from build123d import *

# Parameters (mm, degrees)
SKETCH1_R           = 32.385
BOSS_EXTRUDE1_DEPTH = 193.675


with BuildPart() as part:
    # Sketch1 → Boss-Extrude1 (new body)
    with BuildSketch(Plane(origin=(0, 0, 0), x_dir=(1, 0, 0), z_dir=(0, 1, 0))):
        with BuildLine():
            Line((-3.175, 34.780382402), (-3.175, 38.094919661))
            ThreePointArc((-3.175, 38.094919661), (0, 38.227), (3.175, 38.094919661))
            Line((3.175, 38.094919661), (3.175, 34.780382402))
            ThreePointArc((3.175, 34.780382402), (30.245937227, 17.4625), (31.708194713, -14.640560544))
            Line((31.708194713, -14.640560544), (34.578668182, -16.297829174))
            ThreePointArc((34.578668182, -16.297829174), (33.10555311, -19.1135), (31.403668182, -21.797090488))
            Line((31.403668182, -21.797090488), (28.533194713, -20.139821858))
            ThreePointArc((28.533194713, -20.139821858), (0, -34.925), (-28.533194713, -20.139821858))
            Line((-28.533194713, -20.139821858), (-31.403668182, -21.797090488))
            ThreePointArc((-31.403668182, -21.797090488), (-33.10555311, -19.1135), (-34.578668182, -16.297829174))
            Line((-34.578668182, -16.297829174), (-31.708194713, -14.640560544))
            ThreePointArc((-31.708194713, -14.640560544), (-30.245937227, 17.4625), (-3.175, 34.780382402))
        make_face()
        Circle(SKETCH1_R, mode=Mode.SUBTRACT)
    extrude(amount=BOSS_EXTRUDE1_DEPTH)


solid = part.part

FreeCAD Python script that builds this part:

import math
import FreeCAD as App
import Part
import Sketcher
from FreeCAD import Vector
Q = App.Units.Quantity

doc = App.newDocument("Part")
params = doc.addObject("Spreadsheet::Sheet", "Params")
for row, (alias, value) in enumerate([
    ("sketch1_diameter", "2.55 in"),
    ("sketch1_radius", "1.375 in"),
    ("sketch1_radius2", "1.505 in"),
    ("pad1_length", "7.625 in"),
], start=1):
    params.set(f"A{row}", alias)
    params.set(f"B{row}", "=" + value)
    params.setAlias(f"B{row}", alias)

body = doc.addObject("PartDesign::Body", "Body")

# Sketch on XZ plane
sketch1 = body.newObject("Sketcher::SketchObject", "Sketch")
sketch1.AttachmentSupport = (doc.getObject("XZ_Plane"), [""])
sketch1.MapMode = "FlatFace"
sketch1.addGeometry(Part.LineSegment(Vector(-3.175, -38.09492, 0), Vector(-3.175, -34.780382, 0)), False)
sketch1.addGeometry(Part.ArcOfCircle(Part.Circle(Vector(0, 0, 0), Vector(0, 0, 1), 34.925), math.radians(155.215909), math.radians(264.784091)), False)
sketch1.addGeometry(Part.LineSegment(Vector(-31.708195, 14.640561, 0), Vector(-34.578668, 16.297829, 0)), False)
sketch1.addGeometry(Part.ArcOfCircle(Part.Circle(Vector(0, 0, 0), Vector(0, 0, 1), 38.227), math.radians(145.235726), math.radians(154.764274)), False)
sketch1.addGeometry(Part.LineSegment(Vector(-31.403668, 21.79709, 0), Vector(-28.533195, 20.139822, 0)), False)
sketch1.addGeometry(Part.ArcOfCircle(Part.Circle(Vector(0, 0, 0), Vector(0, 0, 1), 34.925), math.radians(35.215909), math.radians(144.784091)), False)
sketch1.addGeometry(Part.LineSegment(Vector(28.533195, 20.139822, 0), Vector(31.403668, 21.79709, 0)), False)
sketch1.addGeometry(Part.ArcOfCircle(Part.Circle(Vector(0, 0, 0), Vector(0, 0, 1), 38.227), math.radians(25.235726), math.radians(34.764274)), False)
sketch1.addGeometry(Part.LineSegment(Vector(34.578668, 16.297829, 0), Vector(31.708195, 14.640561, 0)), False)
sketch1.addGeometry(Part.ArcOfCircle(Part.Circle(Vector(0, 0, 0), Vector(0, 0, 1), 34.925), math.radians(-84.784091), math.radians(24.784091)), False)
sketch1.addGeometry(Part.LineSegment(Vector(3.175, -34.780382, 0), Vector(3.175, -38.09492, 0)), False)
sketch1.addGeometry(Part.ArcOfCircle(Part.Circle(Vector(0, 0, 0), Vector(0, 0, 1), 38.227), math.radians(-94.764274), math.radians(-85.235726)), False)
sketch1.addGeometry(Part.Circle(Vector(0, 0, 0), Vector(0, 0, 1), 32.385), False)
sketch1.addConstraint(Sketcher.Constraint("Coincident", 0, 2, 1, 2))
sketch1.addConstraint(Sketcher.Constraint("Coincident", 1, 1, 2, 1))
sketch1.addConstraint(Sketcher.Constraint("Coincident", 2, 2, 3, 2))
sketch1.addConstraint(Sketcher.Constraint("Coincident", 3, 1, 4, 1))
sketch1.addConstraint(Sketcher.Constraint("Coincident", 4, 2, 5, 2))
sketch1.addConstraint(Sketcher.Constraint("Coincident", 5, 1, 6, 1))
sketch1.addConstraint(Sketcher.Constraint("Coincident", 6, 2, 7, 2))
sketch1.addConstraint(Sketcher.Constraint("Coincident", 7, 1, 8, 1))
sketch1.addConstraint(Sketcher.Constraint("Coincident", 8, 2, 9, 2))
sketch1.addConstraint(Sketcher.Constraint("Coincident", 9, 1, 10, 1))
sketch1.addConstraint(Sketcher.Constraint("Coincident", 10, 2, 11, 2))
sketch1.addConstraint(Sketcher.Constraint("Coincident", 11, 1, 0, 1))
sketch1.addConstraint(Sketcher.Constraint("Vertical", 0))
sketch1.addConstraint(Sketcher.Constraint("Vertical", 10))
sketch1.addConstraint(Sketcher.Constraint("Coincident", 1, 3, -1, 1))
sketch1.addConstraint(Sketcher.Constraint("Coincident", 3, 3, -1, 1))
sketch1.addConstraint(Sketcher.Constraint("Coincident", 5, 3, -1, 1))
sketch1.addConstraint(Sketcher.Constraint("Coincident", 7, 3, -1, 1))
sketch1.addConstraint(Sketcher.Constraint("Coincident", 9, 3, -1, 1))
sketch1.addConstraint(Sketcher.Constraint("Coincident", 11, 3, -1, 1))
sketch1.addConstraint(Sketcher.Constraint("Coincident", 12, 3, -1, 1))
sketch1.addConstraint(Sketcher.Constraint("Equal", 1, 5))
sketch1.addConstraint(Sketcher.Constraint("Equal", 3, 7))
sketch1.addConstraint(Sketcher.Constraint("Equal", 5, 9))
sketch1.addConstraint(Sketcher.Constraint("Equal", 7, 11))
sketch1.addConstraint(Sketcher.Constraint("Parallel", 2, 4))
sketch1.addConstraint(Sketcher.Constraint("Parallel", 6, 8))
sketch1.addConstraint(Sketcher.Constraint("Horizontal", 4, 2, 5, 1))
sketch1.addConstraint(Sketcher.Constraint("Horizontal", 3, 1, 6, 2))
sketch1.addConstraint(Sketcher.Constraint("Horizontal", 2, 2, 7, 1))
sketch1.addConstraint(Sketcher.Constraint("Horizontal", 0, 2, 9, 1))
sketch1.addConstraint(Sketcher.Constraint("Equal", 2, 4))
sketch1.addConstraint(Sketcher.Constraint("Diameter", 12, Q("2.55 in")))
sketch1.addConstraint(Sketcher.Constraint("Angle", 2, Q("150 deg")))
sketch1.addConstraint(Sketcher.Constraint("Radius", 1, Q("1.375 in")))
sketch1.addConstraint(Sketcher.Constraint("Radius", 3, Q("1.505 in")))
sketch1.addConstraint(Sketcher.Constraint("DistanceX", 0, 2, 9, 1, Q("0.25 in")))
sketch1.addConstraint(Sketcher.Constraint("DistanceX", 2, 2, 3, 1, Q("0.125 in")))
sketch1.setExpression("Constraints[32]", "Params.sketch1_diameter")
sketch1.setExpression("Constraints[34]", "Params.sketch1_radius")
sketch1.setExpression("Constraints[35]", "Params.sketch1_radius2")
pad1 = body.newObject("PartDesign::Pad", "Pad")
pad1.Profile = sketch1
pad1.setExpression("Length", "Params.pad1_length")
pad1.Reversed = True

doc.recompute()
